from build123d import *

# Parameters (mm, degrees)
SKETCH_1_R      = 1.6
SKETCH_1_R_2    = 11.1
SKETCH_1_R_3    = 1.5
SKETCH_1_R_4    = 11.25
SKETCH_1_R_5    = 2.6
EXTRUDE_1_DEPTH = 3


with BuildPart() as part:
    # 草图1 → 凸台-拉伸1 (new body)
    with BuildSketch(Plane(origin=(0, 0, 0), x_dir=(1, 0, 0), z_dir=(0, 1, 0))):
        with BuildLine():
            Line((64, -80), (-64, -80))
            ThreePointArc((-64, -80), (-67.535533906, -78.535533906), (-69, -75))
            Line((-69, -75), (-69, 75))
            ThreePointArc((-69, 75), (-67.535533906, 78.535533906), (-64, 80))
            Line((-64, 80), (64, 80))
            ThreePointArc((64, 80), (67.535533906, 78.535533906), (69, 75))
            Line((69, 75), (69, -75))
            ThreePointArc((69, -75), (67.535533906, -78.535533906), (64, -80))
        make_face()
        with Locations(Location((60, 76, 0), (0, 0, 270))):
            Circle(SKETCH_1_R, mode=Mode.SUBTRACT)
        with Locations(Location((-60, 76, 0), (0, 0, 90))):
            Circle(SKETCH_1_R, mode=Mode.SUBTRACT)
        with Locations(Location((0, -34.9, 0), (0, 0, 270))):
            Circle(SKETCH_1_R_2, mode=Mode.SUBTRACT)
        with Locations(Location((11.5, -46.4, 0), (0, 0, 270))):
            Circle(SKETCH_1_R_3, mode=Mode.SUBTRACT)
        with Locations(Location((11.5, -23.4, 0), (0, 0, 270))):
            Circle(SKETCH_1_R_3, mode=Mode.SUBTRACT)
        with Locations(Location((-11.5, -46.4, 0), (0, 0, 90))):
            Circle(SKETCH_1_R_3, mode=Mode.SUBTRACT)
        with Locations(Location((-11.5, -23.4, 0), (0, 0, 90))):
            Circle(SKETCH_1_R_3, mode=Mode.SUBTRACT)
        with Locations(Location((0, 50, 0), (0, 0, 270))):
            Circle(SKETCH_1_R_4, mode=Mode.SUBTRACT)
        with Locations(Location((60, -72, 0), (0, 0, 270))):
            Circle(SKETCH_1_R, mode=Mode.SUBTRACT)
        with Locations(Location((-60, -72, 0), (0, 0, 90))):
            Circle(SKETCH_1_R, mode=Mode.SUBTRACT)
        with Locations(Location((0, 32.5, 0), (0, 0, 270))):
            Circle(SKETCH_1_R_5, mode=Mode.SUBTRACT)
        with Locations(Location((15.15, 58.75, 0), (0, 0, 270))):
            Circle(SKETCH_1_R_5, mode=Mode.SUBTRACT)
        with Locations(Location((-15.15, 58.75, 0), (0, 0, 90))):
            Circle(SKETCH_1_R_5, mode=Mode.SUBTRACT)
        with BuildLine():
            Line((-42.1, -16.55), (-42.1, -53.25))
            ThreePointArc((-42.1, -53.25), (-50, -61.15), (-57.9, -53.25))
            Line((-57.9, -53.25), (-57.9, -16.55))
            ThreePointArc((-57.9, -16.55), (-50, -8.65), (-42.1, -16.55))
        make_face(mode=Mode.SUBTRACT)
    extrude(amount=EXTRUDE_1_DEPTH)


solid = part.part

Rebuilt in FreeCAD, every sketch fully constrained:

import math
import FreeCAD as App
import Part
import Sketcher

V = App.Vector
Q = App.Units.Quantity

doc = App.newDocument("Part")
body = doc.addObject("PartDesign::Body", "Body")

# Sketch on XZ plane
sketch1 = body.newObject("Sketcher::SketchObject", "Sketch")
sketch1.AttachmentSupport = (doc.getObject("XZ_Plane"), [""])
sketch1.MapMode = "FlatFace"
sketch1.addGeometry([
    Part.LineSegment(V(-64, 80, 0), V(64, 80, 0)),  # 0
    Part.ArcOfCircle(Part.Circle(V(64, 75, 0), V(0, 0, 1), 5), math.radians(0), math.radians(90)),  # 1
    Part.LineSegment(V(69, 75, 0), V(69, -75, 0)),  # 2
    Part.ArcOfCircle(Part.Circle(V(64, -75, 0), V(0, 0, 1), 5), math.radians(-90), math.radians(0)),  # 3
    Part.LineSegment(V(64, -80, 0), V(-64, -80, 0)),  # 4
    Part.ArcOfCircle(Part.Circle(V(-64, -75, 0), V(0, 0, 1), 5), math.radians(180), math.radians(270)),  # 5
    Part.LineSegment(V(-69, -75, 0), V(-69, 75, 0)),  # 6
    Part.ArcOfCircle(Part.Circle(V(-64, 75, 0), V(0, 0, 1), 5), math.radians(90), math.radians(180)),  # 7
    Part.Circle(V(60, 72, 0), V(0, 0, 1), 1.6),  # 8
    Part.Circle(V(11.5, 46.4, 0), V(0, 0, 1), 1.5),  # 9
    Part.Circle(V(11.5, 23.4, 0), V(0, 0, 1), 1.5),  # 10
    Part.Circle(V(-11.5, 46.4, 0), V(0, 0, 1), 1.5),  # 11
    Part.Circle(V(-60, 72, 0), V(0, 0, 1), 1.6),  # 12
    Part.Circle(V(0, 34.9, 0), V(0, 0, 1), 11.1),  # 13
    Part.Circle(V(-11.5, 23.4, 0), V(0, 0, 1), 1.5),  # 14
    Part.LineSegment(V(-42.1, 16.6, 0), V(-42.1, 53.2, 0)),  # 15
    Part.ArcOfCircle(Part.Circle(V(-50, 53.2, 0), V(0, 0, 1), 7.9), math.radians(0), math.radians(180)),  # 16
    Part.LineSegment(V(-57.9, 53.2, 0), V(-57.9, 16.6, 0)),  # 17
    Part.ArcOfCircle(Part.Circle(V(-50, 16.6, 0), V(0, 0, 1), 7.9), math.radians(180), math.radians(360)),  # 18
    Part.Circle(V(60, -76, 0), V(0, 0, 1), 1.6),  # 19
    Part.Circle(V(15.2, -58.8, 0), V(0, 0, 1), 2.6),  # 20
    Part.Circle(V(0, -32.5, 0), V(0, 0, 1), 2.6),  # 21
    Part.Circle(V(0, -50, 0), V(0, 0, 1), 11.2),  # 22
    Part.Circle(V(-15.2, -58.8, 0), V(0, 0, 1), 2.6),  # 23
    Part.Circle(V(-60, -76, 0), V(0, 0, 1), 1.6),  # 24
], False)
sketch1.addConstraint([
    Sketcher.Constraint("Tangent", 0, 2, 1, 2),
    Sketcher.Constraint("Tangent", 1, 1, 2, 1),
    Sketcher.Constraint("Tangent", 2, 2, 3, 2),
    Sketcher.Constraint("Tangent", 3, 1, 4, 1),
    Sketcher.Constraint("Tangent", 4, 2, 5, 2),
    Sketcher.Constraint("Tangent", 5, 1, 6, 1),
    Sketcher.Constraint("Tangent", 6, 2, 7, 2),
    Sketcher.Constraint("Tangent", 7, 1, 0, 1),
    Sketcher.Constraint("Tangent", 15, 2, 16, 1),
    Sketcher.Constraint("Tangent", 16, 2, 17, 1),
    Sketcher.Constraint("Tangent", 17, 2, 18, 1),
    Sketcher.Constraint("Tangent", 18, 2, 15, 1),
    Sketcher.Constraint("Horizontal", 0),
    Sketcher.Constraint("Vertical", 2),
    Sketcher.Constraint("Horizontal", 4),
    Sketcher.Constraint("Vertical", 6),
    Sketcher.Constraint("Vertical", 15),
    Sketcher.Constraint("Vertical", 17),
    Sketcher.Constraint("Equal", 1, 3),
    Sketcher.Constraint("Equal", 3, 5),
    Sketcher.Constraint("Equal", 5, 7),
    Sketcher.Constraint("Equal", 9, 10),
    Sketcher.Constraint("Equal", 10, 11),
    Sketcher.Constraint("Equal", 8, 12),
    Sketcher.Constraint("Equal", 11, 14),
    Sketcher.Constraint("Equal", 12, 19),
    Sketcher.Constraint("Equal", 20, 21),
    Sketcher.Constraint("Equal", 21, 23),
    Sketcher.Constraint("Equal", 19, 24),
    Sketcher.Constraint("Symmetric", 1, 3, 5, 3, -1, 1),
    Sketcher.Constraint("Symmetric", 9, 3, 11, 3, -2),
    Sketcher.Constraint("Symmetric", 8, 3, 12, 3, -2),
    Sketcher.Constraint("Symmetric", 10, 3, 14, 3, -2),
    Sketcher.Constraint("Symmetric", 20, 3, 23, 3, -2),
    Sketcher.Constraint("Symmetric", 19, 3, 24, 3, -2),
    Sketcher.Constraint("PointOnObject", 13, 3, -2),
    Sketcher.Constraint("PointOnObject", 21, 3, -2),
    Sketcher.Constraint("PointOnObject", 22, 3, -2),
    Sketcher.Constraint("Vertical", 9, 3, 10, 3),
    Sketcher.Constraint("Vertical", 8, 3, 19, 3),
    Sketcher.Constraint("Diameter", 9, Q("3 mm")),
    Sketcher.Constraint("Radius", 1, Q("5 mm")),
    Sketcher.Constraint("Diameter", 8, Q("3.2 mm")),
    Sketcher.Constraint("Diameter", 13, Q("22.2 mm")),
    Sketcher.Constraint("Diameter", 20, Q("5.2 mm")),
    Sketcher.Constraint("Diameter", 22, Q("22.5 mm")),
    Sketcher.Constraint("Radius", 16, Q("7.9 mm")),
    Sketcher.Constraint("DistanceX", 0, 1, 0, 2, Q("128 mm")),
    Sketcher.Constraint("DistanceY", 2, 2, 2, 1, Q("150 mm")),
    Sketcher.Constraint("DistanceY", 15, 1, 15, 2, Q("36.7 mm")),
    Sketcher.Constraint("DistanceX", -1, 1, 8, 3, Q("60 mm")),
    Sketcher.Constraint("DistanceY", -1, 1, 8, 3, Q("72 mm")),
    Sketcher.Constraint("DistanceX", 16, 3, -1, 1, Q("50 mm")),
    Sketcher.Constraint("DistanceY", 19, 3, -1, 1, Q("76 mm")),
    Sketcher.Constraint("DistanceY", 22, 3, -1, 1, Q("50 mm")),
    Sketcher.Constraint("DistanceY", 10, 3, 9, 3, Q("23 mm")),
    Sketcher.Constraint("DistanceX", 11, 3, 9, 3, Q("23 mm")),
    Sketcher.Constraint("DistanceY", -1, 1, 9, 3, Q("46.4 mm")),
    Sketcher.Constraint("DistanceY", -1, 1, 13, 3, Q("34.9 mm")),
    Sketcher.Constraint("DistanceY", 21, 3, -1, 1, Q("32.5 mm")),
    Sketcher.Constraint("DistanceX", 23, 3, 20, 3, Q("30.3 mm")),
    Sketcher.Constraint("DistanceY", -1, 1, 16, 3, Q("53.25 mm")),
    Sketcher.Constraint("DistanceY", 20, 3, -1, 1, Q("58.75 mm")),
])
pad1 = body.newObject("PartDesign::Pad", "Pad")
pad1.Profile = sketch1
pad1.Length = 3
pad1.Reversed = True

doc.recompute()
